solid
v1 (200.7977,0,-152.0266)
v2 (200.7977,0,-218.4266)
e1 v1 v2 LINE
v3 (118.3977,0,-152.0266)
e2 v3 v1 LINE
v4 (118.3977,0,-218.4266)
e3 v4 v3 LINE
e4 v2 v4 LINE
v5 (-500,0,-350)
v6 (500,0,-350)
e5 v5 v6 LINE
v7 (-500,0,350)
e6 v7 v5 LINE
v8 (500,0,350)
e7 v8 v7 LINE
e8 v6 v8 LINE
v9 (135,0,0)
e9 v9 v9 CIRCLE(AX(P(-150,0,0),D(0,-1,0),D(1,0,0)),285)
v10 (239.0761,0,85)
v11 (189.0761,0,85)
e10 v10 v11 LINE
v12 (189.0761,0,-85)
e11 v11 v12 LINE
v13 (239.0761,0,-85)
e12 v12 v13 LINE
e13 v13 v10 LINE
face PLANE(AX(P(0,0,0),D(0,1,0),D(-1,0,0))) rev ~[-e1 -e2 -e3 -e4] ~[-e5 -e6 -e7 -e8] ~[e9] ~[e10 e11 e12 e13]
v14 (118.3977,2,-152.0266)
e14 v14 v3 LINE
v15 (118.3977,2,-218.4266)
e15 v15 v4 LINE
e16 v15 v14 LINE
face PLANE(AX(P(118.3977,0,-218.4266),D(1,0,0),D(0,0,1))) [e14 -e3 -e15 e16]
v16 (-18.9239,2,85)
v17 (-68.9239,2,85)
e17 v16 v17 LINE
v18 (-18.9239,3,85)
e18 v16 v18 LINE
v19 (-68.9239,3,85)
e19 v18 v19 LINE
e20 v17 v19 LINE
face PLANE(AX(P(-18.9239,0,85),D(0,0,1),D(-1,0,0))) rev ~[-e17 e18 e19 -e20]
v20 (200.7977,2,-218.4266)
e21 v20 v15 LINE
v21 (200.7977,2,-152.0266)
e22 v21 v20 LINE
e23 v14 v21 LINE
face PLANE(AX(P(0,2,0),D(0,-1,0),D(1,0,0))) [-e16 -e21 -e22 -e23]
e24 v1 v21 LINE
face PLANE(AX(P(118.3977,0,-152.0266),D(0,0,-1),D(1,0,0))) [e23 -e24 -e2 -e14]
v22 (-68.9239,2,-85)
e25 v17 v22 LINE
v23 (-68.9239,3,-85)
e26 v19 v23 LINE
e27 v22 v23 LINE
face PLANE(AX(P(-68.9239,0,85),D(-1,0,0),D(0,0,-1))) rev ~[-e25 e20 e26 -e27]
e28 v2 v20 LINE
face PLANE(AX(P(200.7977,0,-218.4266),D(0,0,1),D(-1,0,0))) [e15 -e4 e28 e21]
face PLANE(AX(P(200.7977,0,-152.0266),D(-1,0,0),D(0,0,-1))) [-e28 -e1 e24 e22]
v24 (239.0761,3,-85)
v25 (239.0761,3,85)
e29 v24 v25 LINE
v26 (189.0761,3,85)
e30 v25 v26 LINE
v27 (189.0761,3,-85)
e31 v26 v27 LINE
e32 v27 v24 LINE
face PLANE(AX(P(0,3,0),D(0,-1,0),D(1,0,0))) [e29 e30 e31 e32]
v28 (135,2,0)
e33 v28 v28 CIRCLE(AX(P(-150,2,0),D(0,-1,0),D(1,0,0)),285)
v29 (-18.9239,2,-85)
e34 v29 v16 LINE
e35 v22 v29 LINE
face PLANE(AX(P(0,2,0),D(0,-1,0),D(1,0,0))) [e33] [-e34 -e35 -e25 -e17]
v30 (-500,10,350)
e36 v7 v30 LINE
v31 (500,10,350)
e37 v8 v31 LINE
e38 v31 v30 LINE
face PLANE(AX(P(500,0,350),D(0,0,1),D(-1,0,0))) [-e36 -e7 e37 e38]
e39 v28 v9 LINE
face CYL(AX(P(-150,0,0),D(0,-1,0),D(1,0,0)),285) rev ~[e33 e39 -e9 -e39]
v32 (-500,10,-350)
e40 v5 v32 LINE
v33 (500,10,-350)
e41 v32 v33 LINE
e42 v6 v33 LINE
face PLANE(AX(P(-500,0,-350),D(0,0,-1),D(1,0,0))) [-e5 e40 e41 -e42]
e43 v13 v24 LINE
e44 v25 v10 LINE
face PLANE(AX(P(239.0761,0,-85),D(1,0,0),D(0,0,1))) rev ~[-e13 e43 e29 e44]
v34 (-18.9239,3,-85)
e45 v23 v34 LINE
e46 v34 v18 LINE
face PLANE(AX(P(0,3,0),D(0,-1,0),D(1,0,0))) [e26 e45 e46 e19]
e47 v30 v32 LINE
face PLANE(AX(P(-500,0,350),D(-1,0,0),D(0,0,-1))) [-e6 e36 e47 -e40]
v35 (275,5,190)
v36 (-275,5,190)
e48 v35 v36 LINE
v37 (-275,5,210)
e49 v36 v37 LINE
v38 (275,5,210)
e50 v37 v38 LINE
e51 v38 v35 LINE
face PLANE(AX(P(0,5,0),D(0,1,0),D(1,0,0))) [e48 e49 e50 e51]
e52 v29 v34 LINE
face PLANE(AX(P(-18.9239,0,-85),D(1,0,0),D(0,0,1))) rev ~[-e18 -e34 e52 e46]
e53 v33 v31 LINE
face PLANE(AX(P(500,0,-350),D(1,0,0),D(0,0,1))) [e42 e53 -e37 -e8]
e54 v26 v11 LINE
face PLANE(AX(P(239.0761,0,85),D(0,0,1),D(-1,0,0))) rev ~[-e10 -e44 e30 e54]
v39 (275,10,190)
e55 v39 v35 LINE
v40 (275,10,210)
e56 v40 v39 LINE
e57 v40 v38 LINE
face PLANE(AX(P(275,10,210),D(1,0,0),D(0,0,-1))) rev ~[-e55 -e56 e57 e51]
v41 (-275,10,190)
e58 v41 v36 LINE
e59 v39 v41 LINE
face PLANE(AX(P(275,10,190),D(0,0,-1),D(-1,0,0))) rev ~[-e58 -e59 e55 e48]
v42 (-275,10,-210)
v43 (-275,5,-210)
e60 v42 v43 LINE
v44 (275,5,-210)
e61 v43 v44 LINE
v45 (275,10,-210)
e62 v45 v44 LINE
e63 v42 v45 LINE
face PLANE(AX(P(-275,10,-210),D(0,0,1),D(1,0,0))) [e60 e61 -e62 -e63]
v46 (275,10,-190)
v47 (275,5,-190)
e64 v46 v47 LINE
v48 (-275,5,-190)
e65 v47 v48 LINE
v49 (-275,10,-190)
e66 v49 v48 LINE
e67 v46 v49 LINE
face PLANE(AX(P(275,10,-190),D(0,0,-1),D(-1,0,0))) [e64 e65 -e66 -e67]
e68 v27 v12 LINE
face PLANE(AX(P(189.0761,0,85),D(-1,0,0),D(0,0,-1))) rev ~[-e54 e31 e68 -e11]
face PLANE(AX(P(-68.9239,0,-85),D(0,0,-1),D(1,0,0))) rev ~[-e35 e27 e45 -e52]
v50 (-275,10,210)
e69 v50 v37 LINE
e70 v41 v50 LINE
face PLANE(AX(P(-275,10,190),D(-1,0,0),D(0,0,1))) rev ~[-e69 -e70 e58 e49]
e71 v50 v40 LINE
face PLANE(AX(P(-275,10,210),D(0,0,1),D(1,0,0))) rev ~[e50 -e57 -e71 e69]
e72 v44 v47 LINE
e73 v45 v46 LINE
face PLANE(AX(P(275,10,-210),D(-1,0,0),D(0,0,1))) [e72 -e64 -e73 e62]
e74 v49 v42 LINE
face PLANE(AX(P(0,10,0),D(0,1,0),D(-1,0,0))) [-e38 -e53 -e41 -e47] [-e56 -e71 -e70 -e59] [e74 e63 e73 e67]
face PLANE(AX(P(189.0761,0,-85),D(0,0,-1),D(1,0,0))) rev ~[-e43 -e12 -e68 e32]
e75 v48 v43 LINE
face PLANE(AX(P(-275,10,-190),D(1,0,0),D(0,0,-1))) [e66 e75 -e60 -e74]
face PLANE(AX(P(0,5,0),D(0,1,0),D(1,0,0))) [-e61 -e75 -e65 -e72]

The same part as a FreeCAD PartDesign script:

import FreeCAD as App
import Part
import Sketcher
Q = App.Units.Quantity

doc = App.newDocument("Part")
body = doc.addObject("PartDesign::Body", "Body")

# Sketch on XZ plane
sketch1 = body.newObject("Sketcher::SketchObject", "Sketch")
sketch1.AttachmentSupport = (doc.getObject("XZ_Plane"), [""])
sketch1.MapMode = "FlatFace"
sketch1.addGeometry([
    Part.LineSegment(App.Vector(500, -350, 0), App.Vector(-500, -350, 0)),
    Part.LineSegment(App.Vector(-500, -350, 0), App.Vector(-500, 350, 0)),
    Part.LineSegment(App.Vector(-500, 350, 0), App.Vector(500, 350, 0)),
    Part.LineSegment(App.Vector(500, 350, 0), App.Vector(500, -350, 0)),
], False)
sketch1.addConstraint([
    Sketcher.Constraint("Coincident", 0, 2, 1, 1),
    Sketcher.Constraint("Coincident", 1, 2, 2, 1),
    Sketcher.Constraint("Coincident", 2, 2, 3, 1),
    Sketcher.Constraint("Coincident", 3, 2, 0, 1),
    Sketcher.Constraint("Horizontal", 0),
    Sketcher.Constraint("Vertical", 1),
    Sketcher.Constraint("Horizontal", 2),
    Sketcher.Constraint("Vertical", 3),
    Sketcher.Constraint("Symmetric", 0, 2, 2, 2, -1, 1),
    Sketcher.Constraint("DistanceX", 0, 2, 0, 1, Q("1000 mm")),
    Sketcher.Constraint("DistanceY", 1, 1, 1, 2, Q("700 mm")),
])
pad1 = body.newObject("PartDesign::Pad", "Pad")
pad1.Profile = sketch1
pad1.Length = 10
pad1.Reversed = True

# Sketch on XZ plane
sketch2 = body.newObject("Sketcher::SketchObject", "Sketch001")
sketch2.AttachmentSupport = (doc.getObject("XZ_Plane"), [""])
sketch2.MapMode = "FlatFace"
sketch2.AttachmentOffset = App.Placement(App.Vector(0, 0, -10), App.Rotation())
sketch2.addGeometry([
    Part.LineSegment(App.Vector(-275, 190, 0), App.Vector(-275, 210, 0)),  # 0
    Part.LineSegment(App.Vector(-275, 210, 0), App.Vector(275, 210, 0)),  # 1
    Part.LineSegment(App.Vector(275, 210, 0), App.Vector(275, 190, 0)),  # 2
    Part.LineSegment(App.Vector(275, 190, 0), App.Vector(-275, 190, 0)),  # 3
    Part.LineSegment(App.Vector(275, -210, 0), App.Vector(-275, -210, 0)),  # 4
    Part.LineSegment(App.Vector(-275, -210, 0), App.Vector(-275, -190, 0)),  # 5
    Part.LineSegment(App.Vector(-275, -190, 0), App.Vector(275, -190, 0)),  # 6
    Part.LineSegment(App.Vector(275, -190, 0), App.Vector(275, -210, 0)),  # 7
], False)
sketch2.addConstraint([
    Sketcher.Constraint("Coincident", 0, 2, 1, 1),
    Sketcher.Constraint("Coincident", 1, 2, 2, 1),
    Sketcher.Constraint("Coincident", 2, 2, 3, 1),
    Sketcher.Constraint("Coincident", 3, 2, 0, 1),
    Sketcher.Constraint("Coincident", 4, 2, 5, 1),
    Sketcher.Constraint("Coincident", 5, 2, 6, 1),
    Sketcher.Constraint("Coincident", 6, 2, 7, 1),
    Sketcher.Constraint("Coincident", 7, 2, 4, 1),
    Sketcher.Constraint("Vertical", 0),
    Sketcher.Constraint("Horizontal", 1),
    Sketcher.Constraint("Vertical", 2),
    Sketcher.Constraint("Horizontal", 3),
    Sketcher.Constraint("Horizontal", 4),
    Sketcher.Constraint("Vertical", 5),
    Sketcher.Constraint("Horizontal", 6),
    Sketcher.Constraint("Vertical", 7),
    Sketcher.Constraint("Symmetric", 1, 2, 4, 2, -1, 1),
    Sketcher.Constraint("Symmetric", 3, 2, 6, 2, -1, 1),
    Sketcher.Constraint("Vertical", 3, 2, 4, 2),
    Sketcher.Constraint("DistanceX", 1, 1, 1, 2, Q("550 mm")),
    Sketcher.Constraint("DistanceY", 0, 1, 0, 2, Q("20 mm")),
    Sketcher.Constraint("DistanceY", 4, 2, 0, 2, Q("420 mm")),
])
pocket1 = body.newObject("PartDesign::Pocket", "Pocket")
pocket1.Profile = sketch2
pocket1.Length = 5
pocket1.Reversed = True

# Sketch on XZ plane
sketch3 = body.newObject("Sketcher::SketchObject", "Sketch002")
sketch3.AttachmentSupport = (doc.getObject("XZ_Plane"), [""])
sketch3.MapMode = "FlatFace"
sketch3.addGeometry([
    Part.Circle(App.Vector(-150, 0, 0), App.Vector(0, 0, 1), 285),  # 0
    Part.LineSegment(App.Vector(-68.9239, 85, 0), App.Vector(-18.9239, 85, 0)),  # 1
    Part.LineSegment(App.Vector(-18.9239, 85, 0), App.Vector(-18.9239, -85, 0)),  # 2
    Part.LineSegment(App.Vector(-18.9239, -85, 0), App.Vector(-68.9239, -85, 0)),  # 3
    Part.LineSegment(App.Vector(-68.9239, -85, 0), App.Vector(-68.9239, 85, 0)),  # 4
    Part.LineSegment(App.Vector(118.3977, -218.4266, 0), App.Vector(200.7977, -218.4266, 0)),  # 5
    Part.LineSegment(App.Vector(200.7977, -218.4266, 0), App.Vector(200.7977, -152.0266, 0)),  # 6
    Part.LineSegment(App.Vector(200.7977, -152.0266, 0), App.Vector(118.3977, -152.0266, 0)),  # 7
    Part.LineSegment(App.Vector(118.3977, -152.0266, 0), App.Vector(118.3977, -218.4266, 0)),  # 8
], False)
sketch3.addConstraint([
    Sketcher.Constraint("Coincident", 1, 2, 2, 1),
    Sketcher.Constraint("Coincident", 2, 2, 3, 1),
    Sketcher.Constraint("Coincident", 3, 2, 4, 1),
    Sketcher.Constraint("Coincident", 4, 2, 1, 1),
    Sketcher.Constraint("Coincident", 5, 2, 6, 1),
    Sketcher.Constraint("Coincident", 6, 2, 7, 1),
    Sketcher.Constraint("Coincident", 7, 2, 8, 1),
    Sketcher.Constraint("Coincident", 8, 2, 5, 1),
    Sketcher.Constraint("Horizontal", 1),
    Sketcher.Constraint("Vertical", 2),
    Sketcher.Constraint("Horizontal", 3),
    Sketcher.Constraint("Vertical", 4),
    Sketcher.Constraint("Horizontal", 5),
    Sketcher.Constraint("Vertical", 6),
    Sketcher.Constraint("Horizontal", 7),
    Sketcher.Constraint("Vertical", 8),
    Sketcher.Constraint("PointOnObject", 0, 3, -1),
    Sketcher.Constraint("Diameter", 0, Q("570 mm")),
    Sketcher.Constraint("DistanceX", 1, 1, 1, 2, Q("50 mm")),
    Sketcher.Constraint("DistanceY", 2, 2, 2, 1, Q("170 mm")),
    Sketcher.Constraint("DistanceX", 5, 1, 5, 2, Q("82.4 mm")),
    Sketcher.Constraint("DistanceY", 6, 1, 6, 2, Q("66.4 mm")),
    Sketcher.Constraint("DistanceX", 0, 3, -1, 1, Q("150 mm")),
    Sketcher.Constraint("DistanceY", -1, 1, 1, 2, Q("85 mm")),
    Sketcher.Constraint("DistanceX", 1, 2, -1, 1, Q("18.924 mm")),
    Sketcher.Constraint("DistanceX", -1, 1, 5, 2, Q("200.7977 mm")),
    Sketcher.Constraint("DistanceY", 5, 2, -1, 1, Q("218.4266 mm")),
])
pocket2 = body.newObject("PartDesign::Pocket", "Pocket001")
pocket2.Profile = sketch3
pocket2.Length = 1

# Sketch on XZ plane
sketch4 = body.newObject("Sketcher::SketchObject", "Sketch003")
sketch4.AttachmentSupport = (doc.getObject("XZ_Plane"), [""])
sketch4.MapMode = "FlatFace"
sketch4.addGeometry([
    Part.LineSegment(App.Vector(-18.9239, -85, 0), App.Vector(-18.9239, 85, 0)),  # 0
    Part.LineSegment(App.Vector(-18.9239, 85, 0), App.Vector(-68.9239, 85, 0)),  # 1
    Part.LineSegment(App.Vector(-68.9239, 85, 0), App.Vector(-68.9239, -85, 0)),  # 2
    Part.LineSegment(App.Vector(-68.9239, -85, 0), App.Vector(-18.9239, -85, 0)),  # 3
    Part.LineSegment(App.Vector(239.0761, -85, 0), App.Vector(239.0761, 85, 0)),  # 4
    Part.LineSegment(App.Vector(239.0761, 85, 0), App.Vector(189.0761, 85, 0)),  # 5
    Part.LineSegment(App.Vector(189.0761, 85, 0), App.Vector(189.0761, -85, 0)),  # 6
    Part.LineSegment(App.Vector(189.0761, -85, 0), App.Vector(239.0761, -85, 0)),  # 7
], False)
sketch4.addConstraint([
    Sketcher.Constraint("Coincident", 0, 2, 1, 1),
    Sketcher.Constraint("Coincident", 1, 2, 2, 1),
    Sketcher.Constraint("Coincident", 2, 2, 3, 1),
    Sketcher.Constraint("Coincident", 3, 2, 0, 1),
    Sketcher.Constraint("Coincident", 4, 2, 5, 1),
    Sketcher.Constraint("Coincident", 5, 2, 6, 1),
    Sketcher.Constraint("Coincident", 6, 2, 7, 1),
    Sketcher.Constraint("Coincident", 7, 2, 4, 1),
    Sketcher.Constraint("Vertical", 0),
    Sketcher.Constraint("Horizontal", 1),
    Sketcher.Constraint("Vertical", 2),
    Sketcher.Constraint("Horizontal", 3),
    Sketcher.Constraint("Vertical", 4),
    Sketcher.Constraint("Horizontal", 5),
    Sketcher.Constraint("Vertical", 6),
    Sketcher.Constraint("Horizontal", 7),
    Sketcher.Constraint("Horizontal", 1, 2, 4, 2),
    Sketcher.Constraint("Horizontal", 3, 2, 6, 2),
    Sketcher.Constraint("Equal", 3, 5),
    Sketcher.Constraint("DistanceX", 1, 2, 1, 1, Q("50 mm")),
    Sketcher.Constraint("DistanceY", 0, 1, 0, 2, Q("170 mm")),
    Sketcher.Constraint("DistanceX", 0, 2, 4, 2, Q("258 mm")),
    Sketcher.Constraint("DistanceY", -1, 1, 0, 2, Q("85 mm")),
    Sketcher.Constraint("DistanceX", 0, 2, -1, 1, Q("18.924 mm")),
])
pocket3 = body.newObject("PartDesign::Pocket", "Pocket002")
pocket3.Profile = sketch4
pocket3.Length = 2

# Sketch on XZ plane
sketch5 = body.newObject("Sketcher::SketchObject", "Sketch004")
sketch5.AttachmentSupport = (doc.getObject("XZ_Plane"), [""])
sketch5.MapMode = "FlatFace"
sketch5.addGeometry([
    Part.Circle(App.Vector(-150, 0, 0), App.Vector(0, 0, 1), 285),  # 0
    Part.LineSegment(App.Vector(-68.9239, 85, 0), App.Vector(-18.9239, 85, 0)),  # 1
    Part.LineSegment(App.Vector(-18.9239, 85, 0), App.Vector(-18.9239, -85, 0)),  # 2
    Part.LineSegment(App.Vector(-18.9239, -85, 0), App.Vector(-68.9239, -85, 0)),  # 3
    Part.LineSegment(App.Vector(-68.9239, -85, 0), App.Vector(-68.9239, 85, 0)),  # 4
    Part.LineSegment(App.Vector(118.3977, -218.4266, 0), App.Vector(200.7977, -218.4266, 0)),  # 5
    Part.LineSegment(App.Vector(200.7977, -218.4266, 0), App.Vector(200.7977, -152.0266, 0)),  # 6
    Part.LineSegment(App.Vector(200.7977, -152.0266, 0), App.Vector(118.3977, -152.0266, 0)),  # 7
    Part.LineSegment(App.Vector(118.3977, -152.0266, 0), App.Vector(118.3977, -218.4266, 0)),  # 8
], False)
sketch5.addConstraint([
    Sketcher.Constraint("Coincident", 1, 2, 2, 1),
    Sketcher.Constraint("Coincident", 2, 2, 3, 1),
    Sketcher.Constraint("Coincident", 3, 2, 4, 1),
    Sketcher.Constraint("Coincident", 4, 2, 1, 1),
    Sketcher.Constraint("Coincident", 5, 2, 6, 1),
    Sketcher.Constraint("Coincident", 6, 2, 7, 1),
    Sketcher.Constraint("Coincident", 7, 2, 8, 1),
    Sketcher.Constraint("Coincident", 8, 2, 5, 1),
    Sketcher.Constraint("Horizontal", 1),
    Sketcher.Constraint("Vertical", 2),
    Sketcher.Constraint("Horizontal", 3),
    Sketcher.Constraint("Vertical", 4),
    Sketcher.Constraint("Horizontal", 5),
    Sketcher.Constraint("Vertical", 6),
    Sketcher.Constraint("Horizontal", 7),
    Sketcher.Constraint("Vertical", 8),
    Sketcher.Constraint("PointOnObject", 0, 3, -1),
    Sketcher.Constraint("Diameter", 0, Q("570 mm")),
    Sketcher.Constraint("DistanceX", 1, 1, 1, 2, Q("50 mm")),
    Sketcher.Constraint("DistanceY", 2, 2, 2, 1, Q("170 mm")),
    Sketcher.Constraint("DistanceX", 5, 1, 5, 2, Q("82.4 mm")),
    Sketcher.Constraint("DistanceY", 6, 1, 6, 2, Q("66.4 mm")),
    Sketcher.Constraint("DistanceX", 0, 3, -1, 1, Q("150 mm")),
    Sketcher.Constraint("DistanceY", -1, 1, 1, 2, Q("85 mm")),
    Sketcher.Constraint("DistanceX", 1, 2, -1, 1, Q("18.924 mm")),
    Sketcher.Constraint("DistanceX", -1, 1, 5, 2, Q("200.7977 mm")),
    Sketcher.Constraint("DistanceY", 5, 2, -1, 1, Q("218.4266 mm")),
])
pocket4 = body.newObject("PartDesign::Pocket", "Pocket003")
pocket4.Profile = sketch5
pocket4.Length = 0.1

# Sketch on XZ plane
sketch6 = body.newObject("Sketcher::SketchObject", "Sketch005")
sketch6.AttachmentSupport = (doc.getObject("XZ_Plane"), [""])
sketch6.MapMode = "FlatFace"
sketch6.addGeometry([
    Part.Circle(App.Vector(-150, 0, 0), App.Vector(0, 0, 1), 285),  # 0
    Part.LineSegment(App.Vector(-68.9239, 85, 0), App.Vector(-18.9239, 85, 0)),  # 1
    Part.LineSegment(App.Vector(-18.9239, 85, 0), App.Vector(-18.9239, -85, 0)),  # 2
    Part.LineSegment(App.Vector(-18.9239, -85, 0), App.Vector(-68.9239, -85, 0)),  # 3
    Part.LineSegment(App.Vector(-68.9239, -85, 0), App.Vector(-68.9239, 85, 0)),  # 4
    Part.LineSegment(App.Vector(118.3977, -218.4266, 0), App.Vector(200.7977, -218.4266, 0)),  # 5
    Part.LineSegment(App.Vector(200.7977, -218.4266, 0), App.Vector(200.7977, -152.0266, 0)),  # 6
    Part.LineSegment(App.Vector(200.7977, -152.0266, 0), App.Vector(118.3977, -152.0266, 0)),  # 7
    Part.LineSegment(App.Vector(118.3977, -152.0266, 0), App.Vector(118.3977, -218.4266, 0)),  # 8
], False)
sketch6.addConstraint([
    Sketcher.Constraint("Coincident", 1, 2, 2, 1),
    Sketcher.Constraint("Coincident", 2, 2, 3, 1),
    Sketcher.Constraint("Coincident", 3, 2, 4, 1),
    Sketcher.Constraint("Coincident", 4, 2, 1, 1),
    Sketcher.Constraint("Coincident", 5, 2, 6, 1),
    Sketcher.Constraint("Coincident", 6, 2, 7, 1),
    Sketcher.Constraint("Coincident", 7, 2, 8, 1),
    Sketcher.Constraint("Coincident", 8, 2, 5, 1),
    Sketcher.Constraint("Horizontal", 1),
    Sketcher.Constraint("Vertical", 2),
    Sketcher.Constraint("Horizontal", 3),
    Sketcher.Constraint("Vertical", 4),
    Sketcher.Constraint("Horizontal", 5),
    Sketcher.Constraint("Vertical", 6),
    Sketcher.Constraint("Horizontal", 7),
    Sketcher.Constraint("Vertical", 8),
    Sketcher.Constraint("PointOnObject", 0, 3, -1),
    Sketcher.Constraint("Diameter", 0, Q("570 mm")),
    Sketcher.Constraint("DistanceX", 1, 1, 1, 2, Q("50 mm")),
    Sketcher.Constraint("DistanceY", 2, 2, 2, 1, Q("170 mm")),
    Sketcher.Constraint("DistanceX", 5, 1, 5, 2, Q("82.4 mm")),
    Sketcher.Constraint("DistanceY", 6, 1, 6, 2, Q("66.4 mm")),
    Sketcher.Constraint("DistanceX", 0, 3, -1, 1, Q("150 mm")),
    Sketcher.Constraint("DistanceY", -1, 1, 1, 2, Q("85 mm")),
    Sketcher.Constraint("DistanceX", 1, 2, -1, 1, Q("18.924 mm")),
    Sketcher.Constraint("DistanceX", -1, 1, 5, 2, Q("200.7977 mm")),
    Sketcher.Constraint("DistanceY", 5, 2, -1, 1, Q("218.4266 mm")),
])
pocket5 = body.newObject("PartDesign::Pocket", "Pocket004")
pocket5.Profile = sketch6
pocket5.Length = 1

# Sketch on XZ plane
sketch7 = body.newObject("Sketcher::SketchObject", "Sketch006")
sketch7.AttachmentSupport = (doc.getObject("XZ_Plane"), [""])
sketch7.MapMode = "FlatFace"
sketch7.addGeometry([
    Part.Circle(App.Vector(-150, 0, 0), App.Vector(0, 0, 1), 285),  # 0
    Part.LineSegment(App.Vector(-68.9239, 85, 0), App.Vector(-18.9239, 85, 0)),  # 1
    Part.LineSegment(App.Vector(-18.9239, 85, 0), App.Vector(-18.9239, -85, 0)),  # 2
    Part.LineSegment(App.Vector(-18.9239, -85, 0), App.Vector(-68.9239, -85, 0)),  # 3
    Part.LineSegment(App.Vector(-68.9239, -85, 0), App.Vector(-68.9239, 85, 0)),  # 4
    Part.LineSegment(App.Vector(118.3977, -218.4266, 0), App.Vector(200.7977, -218.4266, 0)),  # 5
    Part.LineSegment(App.Vector(200.7977, -218.4266, 0), App.Vector(200.7977, -152.0266, 0)),  # 6
    Part.LineSegment(App.Vector(200.7977, -152.0266, 0), App.Vector(118.3977, -152.0266, 0)),  # 7
    Part.LineSegment(App.Vector(118.3977, -152.0266, 0), App.Vector(118.3977, -218.4266, 0)),  # 8
], False)
sketch7.addConstraint([
    Sketcher.Constraint("Coincident", 1, 2, 2, 1),
    Sketcher.Constraint("Coincident", 2, 2, 3, 1),
    Sketcher.Constraint("Coincident", 3, 2, 4, 1),
    Sketcher.Constraint("Coincident", 4, 2, 1, 1),
    Sketcher.Constraint("Coincident", 5, 2, 6, 1),
    Sketcher.Constraint("Coincident", 6, 2, 7, 1),
    Sketcher.Constraint("Coincident", 7, 2, 8, 1),
    Sketcher.Constraint("Coincident", 8, 2, 5, 1),
    Sketcher.Constraint("Horizontal", 1),
    Sketcher.Constraint("Vertical", 2),
    Sketcher.Constraint("Horizontal", 3),
    Sketcher.Constraint("Vertical", 4),
    Sketcher.Constraint("Horizontal", 5),
    Sketcher.Constraint("Vertical", 6),
    Sketcher.Constraint("Horizontal", 7),
    Sketcher.Constraint("Vertical", 8),
    Sketcher.Constraint("PointOnObject", 0, 3, -1),
    Sketcher.Constraint("Diameter", 0, Q("570 mm")),
    Sketcher.Constraint("DistanceX", 1, 1, 1, 2, Q("50 mm")),
    Sketcher.Constraint("DistanceY", 2, 2, 2, 1, Q("170 mm")),
    Sketcher.Constraint("DistanceX", 5, 1, 5, 2, Q("82.4 mm")),
    Sketcher.Constraint("DistanceY", 6, 1, 6, 2, Q("66.4 mm")),
    Sketcher.Constraint("DistanceX", 0, 3, -1, 1, Q("150 mm")),
    Sketcher.Constraint("DistanceY", -1, 1, 1, 2, Q("85 mm")),
    Sketcher.Constraint("DistanceX", 1, 2, -1, 1, Q("18.924 mm")),
    Sketcher.Constraint("DistanceX", -1, 1, 5, 2, Q("200.7977 mm")),
    Sketcher.Constraint("DistanceY", 5, 2, -1, 1, Q("218.4266 mm")),
])
pocket6 = body.newObject("PartDesign::Pocket", "Pocket005")
pocket6.Profile = sketch7
pocket6.Length = 2

# Sketch on XZ plane
sketch8 = body.newObject("Sketcher::SketchObject", "Sketch007")
sketch8.AttachmentSupport = (doc.getObject("XZ_Plane"), [""])
sketch8.MapMode = "FlatFace"
sketch8.addGeometry([
    Part.LineSegment(App.Vector(-18.9239, -85, 0), App.Vector(-18.9239, 85, 0)),  # 0
    Part.LineSegment(App.Vector(-18.9239, 85, 0), App.Vector(-68.9239, 85, 0)),  # 1
    Part.LineSegment(App.Vector(-68.9239, 85, 0), App.Vector(-68.9239, -85, 0)),  # 2
    Part.LineSegment(App.Vector(-68.9239, -85, 0), App.Vector(-18.9239, -85, 0)),  # 3
    Part.LineSegment(App.Vector(239.0761, -85, 0), App.Vector(239.0761, 85, 0)),  # 4
    Part.LineSegment(App.Vector(239.0761, 85, 0), App.Vector(189.0761, 85, 0)),  # 5
    Part.LineSegment(App.Vector(189.0761, 85, 0), App.Vector(189.0761, -85, 0)),  # 6
    Part.LineSegment(App.Vector(189.0761, -85, 0), App.Vector(239.0761, -85, 0)),  # 7
], False)
sketch8.addConstraint([
    Sketcher.Constraint("Coincident", 0, 2, 1, 1),
    Sketcher.Constraint("Coincident", 1, 2, 2, 1),
    Sketcher.Constraint("Coincident", 2, 2, 3, 1),
    Sketcher.Constraint("Coincident", 3, 2, 0, 1),
    Sketcher.Constraint("Coincident", 4, 2, 5, 1),
    Sketcher.Constraint("Coincident", 5, 2, 6, 1),
    Sketcher.Constraint("Coincident", 6, 2, 7, 1),
    Sketcher.Constraint("Coincident", 7, 2, 4, 1),
    Sketcher.Constraint("Vertical", 0),
    Sketcher.Constraint("Horizontal", 1),
    Sketcher.Constraint("Vertical", 2),
    Sketcher.Constraint("Horizontal", 3),
    Sketcher.Constraint("Vertical", 4),
    Sketcher.Constraint("Horizontal", 5),
    Sketcher.Constraint("Vertical", 6),
    Sketcher.Constraint("Horizontal", 7),
    Sketcher.Constraint("Horizontal", 1, 2, 4, 2),
    Sketcher.Constraint("Horizontal", 3, 2, 6, 2),
    Sketcher.Constraint("Equal", 3, 5),
    Sketcher.Constraint("DistanceX", 1, 2, 1, 1, Q("50 mm")),
    Sketcher.Constraint("DistanceY", 0, 1, 0, 2, Q("170 mm")),
    Sketcher.Constraint("DistanceX", 0, 2, 4, 2, Q("258 mm")),
    Sketcher.Constraint("DistanceY", -1, 1, 0, 2, Q("85 mm")),
    Sketcher.Constraint("DistanceX", 0, 2, -1, 1, Q("18.924 mm")),
])
pocket7 = body.newObject("PartDesign::Pocket", "Pocket006")
pocket7.Profile = sketch8
pocket7.Length = 3

doc.recompute()
